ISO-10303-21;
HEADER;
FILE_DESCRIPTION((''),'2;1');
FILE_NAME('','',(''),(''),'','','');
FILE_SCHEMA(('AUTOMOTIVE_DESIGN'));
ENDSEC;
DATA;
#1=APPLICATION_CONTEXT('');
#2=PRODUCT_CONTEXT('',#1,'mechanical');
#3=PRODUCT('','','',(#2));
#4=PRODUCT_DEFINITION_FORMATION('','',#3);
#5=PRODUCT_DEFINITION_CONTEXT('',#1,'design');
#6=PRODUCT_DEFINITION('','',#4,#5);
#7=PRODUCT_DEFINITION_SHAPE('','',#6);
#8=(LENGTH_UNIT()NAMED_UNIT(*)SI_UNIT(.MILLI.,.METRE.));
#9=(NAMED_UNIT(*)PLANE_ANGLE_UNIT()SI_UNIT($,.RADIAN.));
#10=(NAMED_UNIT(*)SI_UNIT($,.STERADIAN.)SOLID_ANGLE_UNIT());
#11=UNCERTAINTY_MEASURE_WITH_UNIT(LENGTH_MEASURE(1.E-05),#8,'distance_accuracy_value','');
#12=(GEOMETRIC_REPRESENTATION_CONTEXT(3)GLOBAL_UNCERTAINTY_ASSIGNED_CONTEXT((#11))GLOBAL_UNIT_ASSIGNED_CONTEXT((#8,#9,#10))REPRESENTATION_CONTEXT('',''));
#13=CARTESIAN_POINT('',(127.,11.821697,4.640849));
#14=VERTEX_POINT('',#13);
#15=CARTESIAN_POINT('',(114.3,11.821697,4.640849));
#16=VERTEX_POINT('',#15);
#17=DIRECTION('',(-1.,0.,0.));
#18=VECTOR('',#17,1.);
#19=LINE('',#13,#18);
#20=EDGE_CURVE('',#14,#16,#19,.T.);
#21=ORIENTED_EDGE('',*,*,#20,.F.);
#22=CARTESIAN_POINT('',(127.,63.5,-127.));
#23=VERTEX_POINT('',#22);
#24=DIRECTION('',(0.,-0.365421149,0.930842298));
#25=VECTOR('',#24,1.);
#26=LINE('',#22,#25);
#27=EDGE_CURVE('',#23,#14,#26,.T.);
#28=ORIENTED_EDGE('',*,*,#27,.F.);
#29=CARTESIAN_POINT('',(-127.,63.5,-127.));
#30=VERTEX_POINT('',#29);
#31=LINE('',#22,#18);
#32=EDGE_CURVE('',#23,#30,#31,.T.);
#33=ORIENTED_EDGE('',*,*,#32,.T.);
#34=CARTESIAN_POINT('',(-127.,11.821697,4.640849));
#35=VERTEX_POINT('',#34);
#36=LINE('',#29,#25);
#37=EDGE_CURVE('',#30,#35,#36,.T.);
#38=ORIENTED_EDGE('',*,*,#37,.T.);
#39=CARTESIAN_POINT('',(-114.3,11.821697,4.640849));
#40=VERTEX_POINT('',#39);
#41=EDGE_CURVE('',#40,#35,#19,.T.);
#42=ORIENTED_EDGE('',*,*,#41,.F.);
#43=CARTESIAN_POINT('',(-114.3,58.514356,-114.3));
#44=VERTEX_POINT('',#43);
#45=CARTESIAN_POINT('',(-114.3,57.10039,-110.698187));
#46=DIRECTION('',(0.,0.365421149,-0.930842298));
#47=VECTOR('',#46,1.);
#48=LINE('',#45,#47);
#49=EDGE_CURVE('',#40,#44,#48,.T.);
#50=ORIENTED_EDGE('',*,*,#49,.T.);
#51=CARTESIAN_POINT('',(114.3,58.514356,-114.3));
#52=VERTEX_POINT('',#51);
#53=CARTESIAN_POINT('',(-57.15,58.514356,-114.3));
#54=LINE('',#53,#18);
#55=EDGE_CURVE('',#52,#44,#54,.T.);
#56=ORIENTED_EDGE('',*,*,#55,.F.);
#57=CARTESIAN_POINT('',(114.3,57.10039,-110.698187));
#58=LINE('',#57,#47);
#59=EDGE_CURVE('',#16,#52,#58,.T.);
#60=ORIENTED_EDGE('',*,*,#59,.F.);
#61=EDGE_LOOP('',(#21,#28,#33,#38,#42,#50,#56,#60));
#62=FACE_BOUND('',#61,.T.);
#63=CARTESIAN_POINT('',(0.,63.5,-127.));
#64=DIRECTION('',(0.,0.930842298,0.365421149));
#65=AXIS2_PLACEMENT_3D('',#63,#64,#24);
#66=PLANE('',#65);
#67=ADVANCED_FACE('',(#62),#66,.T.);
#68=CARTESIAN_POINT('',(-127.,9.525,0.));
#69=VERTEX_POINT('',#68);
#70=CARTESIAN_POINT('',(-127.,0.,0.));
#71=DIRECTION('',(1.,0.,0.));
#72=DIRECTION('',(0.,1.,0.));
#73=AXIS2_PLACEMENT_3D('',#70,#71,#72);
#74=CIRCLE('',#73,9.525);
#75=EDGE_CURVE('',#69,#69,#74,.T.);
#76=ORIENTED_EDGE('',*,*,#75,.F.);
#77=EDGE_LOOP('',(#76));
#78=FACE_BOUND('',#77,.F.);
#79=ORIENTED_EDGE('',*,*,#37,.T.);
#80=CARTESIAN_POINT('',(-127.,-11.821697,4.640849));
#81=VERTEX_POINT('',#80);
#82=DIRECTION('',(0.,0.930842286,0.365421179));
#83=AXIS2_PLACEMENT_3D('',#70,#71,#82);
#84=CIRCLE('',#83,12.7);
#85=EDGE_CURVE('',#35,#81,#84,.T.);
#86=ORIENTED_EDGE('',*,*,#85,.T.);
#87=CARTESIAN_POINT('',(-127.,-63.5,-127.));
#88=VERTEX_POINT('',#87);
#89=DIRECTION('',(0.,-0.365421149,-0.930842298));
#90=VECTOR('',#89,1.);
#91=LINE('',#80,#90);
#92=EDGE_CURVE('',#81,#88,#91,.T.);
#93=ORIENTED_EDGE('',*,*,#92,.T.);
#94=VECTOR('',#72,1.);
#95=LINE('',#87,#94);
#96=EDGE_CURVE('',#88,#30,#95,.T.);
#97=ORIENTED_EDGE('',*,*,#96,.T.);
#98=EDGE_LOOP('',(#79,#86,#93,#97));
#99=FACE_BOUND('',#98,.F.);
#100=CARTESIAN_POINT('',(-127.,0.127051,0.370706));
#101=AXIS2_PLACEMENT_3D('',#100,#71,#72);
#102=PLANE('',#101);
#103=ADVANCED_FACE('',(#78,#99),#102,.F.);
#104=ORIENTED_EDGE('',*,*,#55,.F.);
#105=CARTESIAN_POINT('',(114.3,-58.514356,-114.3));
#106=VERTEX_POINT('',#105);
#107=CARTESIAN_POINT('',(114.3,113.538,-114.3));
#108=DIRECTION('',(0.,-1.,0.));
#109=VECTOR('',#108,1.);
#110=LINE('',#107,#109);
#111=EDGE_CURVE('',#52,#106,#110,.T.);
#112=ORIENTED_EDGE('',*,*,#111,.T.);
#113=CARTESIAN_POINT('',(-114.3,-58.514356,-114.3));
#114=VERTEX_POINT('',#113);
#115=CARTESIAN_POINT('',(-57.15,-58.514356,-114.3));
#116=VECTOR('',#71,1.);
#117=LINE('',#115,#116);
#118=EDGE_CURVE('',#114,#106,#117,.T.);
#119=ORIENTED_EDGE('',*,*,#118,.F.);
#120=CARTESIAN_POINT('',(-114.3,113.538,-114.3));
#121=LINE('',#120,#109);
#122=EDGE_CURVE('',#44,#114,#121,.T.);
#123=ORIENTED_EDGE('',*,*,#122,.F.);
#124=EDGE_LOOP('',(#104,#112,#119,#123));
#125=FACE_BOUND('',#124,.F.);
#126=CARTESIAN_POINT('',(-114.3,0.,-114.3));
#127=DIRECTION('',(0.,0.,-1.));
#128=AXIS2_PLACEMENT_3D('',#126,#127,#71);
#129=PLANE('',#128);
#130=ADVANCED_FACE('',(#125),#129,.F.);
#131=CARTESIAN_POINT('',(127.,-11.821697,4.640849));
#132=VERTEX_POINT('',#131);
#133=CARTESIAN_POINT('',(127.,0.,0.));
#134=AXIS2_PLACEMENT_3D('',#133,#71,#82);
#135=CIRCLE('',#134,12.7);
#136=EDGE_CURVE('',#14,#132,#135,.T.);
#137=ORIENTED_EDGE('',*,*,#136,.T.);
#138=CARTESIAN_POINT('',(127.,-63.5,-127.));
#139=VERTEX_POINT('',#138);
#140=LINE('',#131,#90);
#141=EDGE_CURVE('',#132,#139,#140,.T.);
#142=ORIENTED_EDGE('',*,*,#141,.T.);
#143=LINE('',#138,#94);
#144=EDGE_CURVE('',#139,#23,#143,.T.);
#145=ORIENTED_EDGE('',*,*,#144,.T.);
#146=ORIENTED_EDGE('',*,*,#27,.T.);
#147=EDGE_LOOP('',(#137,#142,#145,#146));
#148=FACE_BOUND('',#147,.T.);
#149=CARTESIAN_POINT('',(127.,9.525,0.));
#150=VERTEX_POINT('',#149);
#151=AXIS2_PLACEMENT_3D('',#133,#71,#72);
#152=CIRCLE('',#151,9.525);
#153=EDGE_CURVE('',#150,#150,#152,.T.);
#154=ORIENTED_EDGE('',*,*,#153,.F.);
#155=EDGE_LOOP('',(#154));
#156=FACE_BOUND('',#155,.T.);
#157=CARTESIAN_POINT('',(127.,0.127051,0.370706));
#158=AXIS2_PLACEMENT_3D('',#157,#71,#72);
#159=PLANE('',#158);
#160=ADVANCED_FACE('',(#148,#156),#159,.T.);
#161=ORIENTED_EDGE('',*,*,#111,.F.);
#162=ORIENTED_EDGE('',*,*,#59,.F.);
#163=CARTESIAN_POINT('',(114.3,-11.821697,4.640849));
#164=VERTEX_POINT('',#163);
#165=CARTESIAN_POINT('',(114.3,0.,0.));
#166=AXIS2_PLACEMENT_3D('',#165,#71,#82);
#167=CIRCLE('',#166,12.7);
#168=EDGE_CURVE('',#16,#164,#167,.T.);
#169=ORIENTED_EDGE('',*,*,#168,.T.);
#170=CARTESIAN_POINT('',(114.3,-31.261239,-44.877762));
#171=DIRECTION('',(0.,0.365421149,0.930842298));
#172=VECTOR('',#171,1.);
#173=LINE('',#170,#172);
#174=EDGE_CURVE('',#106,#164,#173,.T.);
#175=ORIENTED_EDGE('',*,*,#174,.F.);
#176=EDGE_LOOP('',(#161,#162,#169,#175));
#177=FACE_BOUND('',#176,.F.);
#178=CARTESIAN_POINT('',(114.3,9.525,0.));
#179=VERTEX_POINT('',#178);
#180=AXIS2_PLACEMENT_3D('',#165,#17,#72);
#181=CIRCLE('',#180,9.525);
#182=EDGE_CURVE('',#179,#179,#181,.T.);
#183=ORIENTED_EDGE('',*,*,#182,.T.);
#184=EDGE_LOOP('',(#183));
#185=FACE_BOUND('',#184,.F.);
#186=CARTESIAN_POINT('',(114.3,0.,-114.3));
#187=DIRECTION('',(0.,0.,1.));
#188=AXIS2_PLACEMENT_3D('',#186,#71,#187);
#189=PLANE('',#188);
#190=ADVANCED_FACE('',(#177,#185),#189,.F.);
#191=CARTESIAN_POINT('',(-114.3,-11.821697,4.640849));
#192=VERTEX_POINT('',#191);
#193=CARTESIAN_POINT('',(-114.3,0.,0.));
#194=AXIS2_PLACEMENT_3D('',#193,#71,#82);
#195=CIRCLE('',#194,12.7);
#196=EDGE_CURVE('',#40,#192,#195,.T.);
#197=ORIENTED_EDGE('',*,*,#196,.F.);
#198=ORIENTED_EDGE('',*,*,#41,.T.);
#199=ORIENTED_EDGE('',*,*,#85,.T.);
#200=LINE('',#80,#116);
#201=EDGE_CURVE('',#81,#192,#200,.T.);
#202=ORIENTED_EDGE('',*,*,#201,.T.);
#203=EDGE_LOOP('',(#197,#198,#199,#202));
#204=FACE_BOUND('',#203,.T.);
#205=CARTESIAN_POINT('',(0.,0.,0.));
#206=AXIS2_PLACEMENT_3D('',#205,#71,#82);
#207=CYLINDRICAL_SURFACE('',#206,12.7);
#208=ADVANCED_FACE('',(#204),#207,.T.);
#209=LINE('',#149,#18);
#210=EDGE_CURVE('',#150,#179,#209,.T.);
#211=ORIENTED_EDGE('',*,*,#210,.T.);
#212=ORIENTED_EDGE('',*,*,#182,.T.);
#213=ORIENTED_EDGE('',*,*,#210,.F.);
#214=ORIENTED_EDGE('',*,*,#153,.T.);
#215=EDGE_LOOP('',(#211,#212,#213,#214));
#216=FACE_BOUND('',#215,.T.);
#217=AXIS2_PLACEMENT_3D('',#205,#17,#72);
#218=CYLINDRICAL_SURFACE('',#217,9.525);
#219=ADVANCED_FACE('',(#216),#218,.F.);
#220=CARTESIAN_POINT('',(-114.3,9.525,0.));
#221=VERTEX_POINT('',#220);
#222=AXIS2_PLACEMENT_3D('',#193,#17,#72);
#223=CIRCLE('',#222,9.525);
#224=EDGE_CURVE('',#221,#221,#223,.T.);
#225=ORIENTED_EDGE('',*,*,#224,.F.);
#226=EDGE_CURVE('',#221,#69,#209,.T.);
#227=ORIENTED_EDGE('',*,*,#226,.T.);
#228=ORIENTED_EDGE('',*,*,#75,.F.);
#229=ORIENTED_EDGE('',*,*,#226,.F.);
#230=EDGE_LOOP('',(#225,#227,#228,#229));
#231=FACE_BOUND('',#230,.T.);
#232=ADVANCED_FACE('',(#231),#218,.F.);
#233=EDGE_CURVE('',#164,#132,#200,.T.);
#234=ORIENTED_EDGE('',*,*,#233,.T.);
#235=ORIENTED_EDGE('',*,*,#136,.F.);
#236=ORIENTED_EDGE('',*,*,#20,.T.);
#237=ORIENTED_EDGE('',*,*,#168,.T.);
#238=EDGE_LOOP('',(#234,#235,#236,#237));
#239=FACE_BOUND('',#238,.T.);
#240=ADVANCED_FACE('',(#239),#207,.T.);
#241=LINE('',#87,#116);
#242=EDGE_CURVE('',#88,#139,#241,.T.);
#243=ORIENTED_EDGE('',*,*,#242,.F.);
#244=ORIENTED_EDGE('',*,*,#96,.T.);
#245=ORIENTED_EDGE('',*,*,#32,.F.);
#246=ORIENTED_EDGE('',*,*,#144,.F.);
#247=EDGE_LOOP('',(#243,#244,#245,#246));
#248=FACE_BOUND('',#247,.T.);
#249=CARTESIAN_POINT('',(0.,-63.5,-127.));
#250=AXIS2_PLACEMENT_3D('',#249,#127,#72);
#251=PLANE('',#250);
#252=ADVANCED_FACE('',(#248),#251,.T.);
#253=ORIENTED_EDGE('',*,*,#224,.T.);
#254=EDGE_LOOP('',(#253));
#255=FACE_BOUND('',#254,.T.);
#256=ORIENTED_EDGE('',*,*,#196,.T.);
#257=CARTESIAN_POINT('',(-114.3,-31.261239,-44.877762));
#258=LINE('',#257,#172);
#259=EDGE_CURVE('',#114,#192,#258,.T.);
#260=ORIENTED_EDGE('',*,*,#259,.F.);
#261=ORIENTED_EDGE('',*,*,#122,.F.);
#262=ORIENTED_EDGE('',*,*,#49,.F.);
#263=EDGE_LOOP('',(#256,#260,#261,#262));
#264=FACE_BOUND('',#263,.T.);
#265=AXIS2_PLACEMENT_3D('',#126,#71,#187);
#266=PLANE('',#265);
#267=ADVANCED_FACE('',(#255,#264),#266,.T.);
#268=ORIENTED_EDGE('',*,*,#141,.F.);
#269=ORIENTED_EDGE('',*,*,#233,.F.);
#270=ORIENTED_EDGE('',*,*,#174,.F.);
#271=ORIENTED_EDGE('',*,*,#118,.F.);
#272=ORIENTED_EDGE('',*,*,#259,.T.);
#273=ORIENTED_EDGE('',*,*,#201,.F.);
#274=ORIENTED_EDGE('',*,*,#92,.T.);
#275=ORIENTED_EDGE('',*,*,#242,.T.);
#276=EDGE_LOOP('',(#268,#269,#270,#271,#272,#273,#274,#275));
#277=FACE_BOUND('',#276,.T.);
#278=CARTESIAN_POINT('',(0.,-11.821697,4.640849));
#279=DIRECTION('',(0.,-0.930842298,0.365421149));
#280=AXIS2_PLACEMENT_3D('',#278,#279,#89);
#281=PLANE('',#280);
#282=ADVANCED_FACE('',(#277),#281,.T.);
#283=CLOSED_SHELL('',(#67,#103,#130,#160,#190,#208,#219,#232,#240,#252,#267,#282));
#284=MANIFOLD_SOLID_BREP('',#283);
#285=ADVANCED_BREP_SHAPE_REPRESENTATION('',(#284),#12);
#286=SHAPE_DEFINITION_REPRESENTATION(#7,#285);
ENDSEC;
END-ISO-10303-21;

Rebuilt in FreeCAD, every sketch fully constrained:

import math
import FreeCAD as App
import Part
import Sketcher
from FreeCAD import Vector
Q = App.Units.Quantity

doc = App.newDocument("Part")
body = doc.addObject("PartDesign::Body", "Body")

sketch1 = body.newObject("Sketcher::SketchObject", "Sketch")
sketch1.AttachmentSupport = (doc.getObject("YZ_Plane"), [""])
sketch1.MapMode = "FlatFace"
sketch1.addGeometry([
    Part.ArcOfCircle(Part.Circle(Vector(0, 0, 0), Vector(0, 0, 1), 12.7), math.radians(21.433505), math.radians(158.566495)),
    Part.LineSegment(Vector(-11.821697, 4.640849, 0), Vector(-63.5, -127, 0)),
    Part.LineSegment(Vector(-63.5, -127, 0), Vector(63.5, -127, 0)),
    Part.LineSegment(Vector(63.5, -127, 0), Vector(11.821697, 4.640849, 0)),
    Part.Circle(Vector(0, 0, 0), Vector(0, 0, 1), 9.525),
], False)
sketch1.addConstraint([
    Sketcher.Constraint("Tangent", 0, 2, 1, 1),
    Sketcher.Constraint("Coincident", 1, 2, 2, 1),
    Sketcher.Constraint("Coincident", 2, 2, 3, 1),
    Sketcher.Constraint("Tangent", 3, 2, 0, 1),
    Sketcher.Constraint("Horizontal", 2),
    Sketcher.Constraint("Coincident", 0, 3, -1, 1),
    Sketcher.Constraint("Coincident", 4, 3, -1, 1),
    Sketcher.Constraint("Horizontal", 0, 2, 3, 2),
    Sketcher.Constraint("Radius", 0, Q("0.5 in")),
    Sketcher.Constraint("Diameter", 4, Q("0.75 in")),
    Sketcher.Constraint("DistanceX", 2, 1, 2, 2, Q("5 in")),
    Sketcher.Constraint("DistanceY", 1, 2, -1, 1, Q("5 in")),
])
pad1 = body.newObject("PartDesign::Pad", "Pad")
pad1.Profile = sketch1
pad1.Length = Q("10 in")
pad1.Midplane = True

sketch2 = body.newObject("Sketcher::SketchObject", "Sketch001")
sketch2.AttachmentSupport = (doc.getObject("XZ_Plane"), [""])
sketch2.MapMode = "FlatFace"
sketch2.addGeometry([
    Part.LineSegment(Vector(-114.3, 38.1, 0), Vector(-114.3, -114.3, 0)),
    Part.LineSegment(Vector(-114.3, -114.3, 0), Vector(114.3, -114.3, 0)),
    Part.LineSegment(Vector(114.3, -114.3, 0), Vector(114.3, 38.1, 0)),
    Part.LineSegment(Vector(114.3, 38.1, 0), Vector(-114.3, 38.1, 0)),
], False)
sketch2.addConstraint([
    Sketcher.Constraint("Coincident", 0, 2, 1, 1),
    Sketcher.Constraint("Coincident", 1, 2, 2, 1),
    Sketcher.Constraint("Coincident", 2, 2, 3, 1),
    Sketcher.Constraint("Coincident", 3, 2, 0, 1),
    Sketcher.Constraint("Vertical", 0),
    Sketcher.Constraint("Horizontal", 1),
    Sketcher.Constraint("Vertical", 2),
    Sketcher.Constraint("Horizontal", 3),
    Sketcher.Constraint("DistanceX", 1, 1, 1, 2, Q("9 in")),
    Sketcher.Constraint("DistanceY", 0, 2, 0, 1, Q("6 in")),
    Sketcher.Constraint("DistanceX", 0, 2, -1, 1, Q("4.5 in")),
    Sketcher.Constraint("DistanceY", 0, 2, -1, 1, Q("4.5 in")),
])
pocket1 = body.newObject("PartDesign::Pocket", "Pocket")
pocket1.Profile = sketch2
pocket1.Length = Q("8.94 in")
pocket1.Midplane = True

doc.recompute()
